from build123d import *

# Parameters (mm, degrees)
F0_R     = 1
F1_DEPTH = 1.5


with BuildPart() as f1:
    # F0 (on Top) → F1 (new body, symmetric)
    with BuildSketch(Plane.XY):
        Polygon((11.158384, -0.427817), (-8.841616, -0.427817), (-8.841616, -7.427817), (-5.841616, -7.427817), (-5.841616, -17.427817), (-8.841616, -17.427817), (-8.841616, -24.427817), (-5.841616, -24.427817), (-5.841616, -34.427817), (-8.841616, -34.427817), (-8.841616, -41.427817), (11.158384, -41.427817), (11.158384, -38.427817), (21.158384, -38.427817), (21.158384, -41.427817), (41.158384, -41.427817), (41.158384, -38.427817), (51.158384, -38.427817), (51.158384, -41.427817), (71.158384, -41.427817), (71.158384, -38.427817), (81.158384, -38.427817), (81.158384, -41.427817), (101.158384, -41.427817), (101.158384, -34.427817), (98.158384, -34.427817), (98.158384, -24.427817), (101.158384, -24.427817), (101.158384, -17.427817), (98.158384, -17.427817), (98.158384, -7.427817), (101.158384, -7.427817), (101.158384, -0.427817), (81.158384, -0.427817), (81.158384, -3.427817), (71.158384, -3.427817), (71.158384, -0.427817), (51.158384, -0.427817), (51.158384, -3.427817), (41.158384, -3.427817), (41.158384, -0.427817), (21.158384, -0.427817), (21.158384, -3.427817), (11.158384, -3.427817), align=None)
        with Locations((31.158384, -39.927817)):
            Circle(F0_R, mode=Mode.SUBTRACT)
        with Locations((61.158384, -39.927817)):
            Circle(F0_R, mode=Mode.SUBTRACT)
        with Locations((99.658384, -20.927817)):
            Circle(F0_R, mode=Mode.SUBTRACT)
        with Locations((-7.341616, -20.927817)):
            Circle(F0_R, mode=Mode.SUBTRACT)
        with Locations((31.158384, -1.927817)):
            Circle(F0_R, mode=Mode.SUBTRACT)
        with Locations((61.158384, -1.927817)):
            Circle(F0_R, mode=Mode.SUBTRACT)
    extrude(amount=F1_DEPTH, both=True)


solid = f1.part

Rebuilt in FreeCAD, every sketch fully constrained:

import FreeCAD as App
import Part
import Sketcher

doc = App.newDocument("Part")
body = doc.addObject("PartDesign::Body", "Body")

# Sketch on XY plane
sketch1 = body.newObject("Sketcher::SketchObject", "Sketch")
sketch1.AttachmentSupport = (doc.getObject("XY_Plane"), [""])
sketch1.MapMode = "FlatFace"
sketch1.addGeometry(Part.LineSegment(App.Vector(11.2, -0.4, 0), App.Vector(-8.8, -0.4, 0)), False)
sketch1.addGeometry(Part.LineSegment(App.Vector(-8.8, -0.4, 0), App.Vector(-8.8, -7.4, 0)), False)
sketch1.addGeometry(Part.LineSegment(App.Vector(-8.8, -7.4, 0), App.Vector(-5.8, -7.4, 0)), False)
sketch1.addGeometry(Part.LineSegment(App.Vector(-5.8, -7.4, 0), App.Vector(-5.8, -17.4, 0)), False)
sketch1.addGeometry(Part.LineSegment(App.Vector(-5.8, -17.4, 0), App.Vector(-8.8, -17.4, 0)), False)
sketch1.addGeometry(Part.LineSegment(App.Vector(-8.8, -17.4, 0), App.Vector(-8.8, -24.4, 0)), False)
sketch1.addGeometry(Part.LineSegment(App.Vector(-8.8, -24.4, 0), App.Vector(-5.8, -24.4, 0)), False)
sketch1.addGeometry(Part.LineSegment(App.Vector(-5.8, -24.4, 0), App.Vector(-5.8, -34.4, 0)), False)
sketch1.addGeometry(Part.LineSegment(App.Vector(-5.8, -34.4, 0), App.Vector(-8.8, -34.4, 0)), False)
sketch1.addGeometry(Part.LineSegment(App.Vector(-8.8, -34.4, 0), App.Vector(-8.8, -41.4, 0)), False)
sketch1.addGeometry(Part.LineSegment(App.Vector(-8.8, -41.4, 0), App.Vector(11.2, -41.4, 0)), False)
sketch1.addGeometry(Part.LineSegment(App.Vector(11.2, -41.4, 0), App.Vector(11.2, -38.4, 0)), False)
sketch1.addGeometry(Part.LineSegment(App.Vector(11.2, -38.4, 0), App.Vector(21.2, -38.4, 0)), False)
sketch1.addGeometry(Part.LineSegment(App.Vector(21.2, -38.4, 0), App.Vector(21.2, -41.4, 0)), False)
sketch1.addGeometry(Part.LineSegment(App.Vector(21.2, -41.4, 0), App.Vector(41.2, -41.4, 0)), False)
sketch1.addGeometry(Part.LineSegment(App.Vector(41.2, -41.4, 0), App.Vector(41.2, -38.4, 0)), False)
sketch1.addGeometry(Part.LineSegment(App.Vector(41.2, -38.4, 0), App.Vector(51.2, -38.4, 0)), False)
sketch1.addGeometry(Part.LineSegment(App.Vector(51.2, -38.4, 0), App.Vector(51.2, -41.4, 0)), False)
sketch1.addGeometry(Part.LineSegment(App.Vector(51.2, -41.4, 0), App.Vector(71.2, -41.4, 0)), False)
sketch1.addGeometry(Part.LineSegment(App.Vector(71.2, -41.4, 0), App.Vector(71.2, -38.4, 0)), False)
sketch1.addGeometry(Part.LineSegment(App.Vector(71.2, -38.4, 0), App.Vector(81.2, -38.4, 0)), False)
sketch1.addGeometry(Part.LineSegment(App.Vector(81.2, -38.4, 0), App.Vector(81.2, -41.4, 0)), False)
sketch1.addGeometry(Part.LineSegment(App.Vector(81.2, -41.4, 0), App.Vector(101.2, -41.4, 0)), False)
sketch1.addGeometry(Part.LineSegment(App.Vector(101.2, -41.4, 0), App.Vector(101.2, -34.4, 0)), False)
sketch1.addGeometry(Part.LineSegment(App.Vector(101.2, -34.4, 0), App.Vector(98.2, -34.4, 0)), False)
sketch1.addGeometry(Part.LineSegment(App.Vector(98.2, -34.4, 0), App.Vector(98.2, -24.4, 0)), False)
sketch1.addGeometry(Part.LineSegment(App.Vector(98.2, -24.4, 0), App.Vector(101.2, -24.4, 0)), False)
sketch1.addGeometry(Part.LineSegment(App.Vector(101.2, -24.4, 0), App.Vector(101.2, -17.4, 0)), False)
sketch1.addGeometry(Part.LineSegment(App.Vector(101.2, -17.4, 0), App.Vector(98.2, -17.4, 0)), False)
sketch1.addGeometry(Part.LineSegment(App.Vector(98.2, -17.4, 0), App.Vector(98.2, -7.4, 0)), False)
sketch1.addGeometry(Part.LineSegment(App.Vector(98.2, -7.4, 0), App.Vector(101.2, -7.4, 0)), False)
sketch1.addGeometry(Part.LineSegment(App.Vector(101.2, -7.4, 0), App.Vector(101.2, -0.4, 0)), False)
sketch1.addGeometry(Part.LineSegment(App.Vector(101.2, -0.4, 0), App.Vector(81.2, -0.4, 0)), False)
sketch1.addGeometry(Part.LineSegment(App.Vector(81.2, -0.4, 0), App.Vector(81.2, -3.4, 0)), False)
sketch1.addGeometry(Part.LineSegment(App.Vector(81.2, -3.4, 0), App.Vector(71.2, -3.4, 0)), False)
sketch1.addGeometry(Part.LineSegment(App.Vector(71.2, -3.4, 0), App.Vector(71.2, -0.4, 0)), False)
sketch1.addGeometry(Part.LineSegment(App.Vector(71.2, -0.4, 0), App.Vector(51.2, -0.4, 0)), False)
sketch1.addGeometry(Part.LineSegment(App.Vector(51.2, -0.4, 0), App.Vector(51.2, -3.4, 0)), False)
sketch1.addGeometry(Part.LineSegment(App.Vector(51.2, -3.4, 0), App.Vector(41.2, -3.4, 0)), False)
sketch1.addGeometry(Part.LineSegment(App.Vector(41.2, -3.4, 0), App.Vector(41.2, -0.4, 0)), False)
sketch1.addGeometry(Part.LineSegment(App.Vector(41.2, -0.4, 0), App.Vector(21.2, -0.4, 0)), False)
sketch1.addGeometry(Part.LineSegment(App.Vector(21.2, -0.4, 0), App.Vector(21.2, -3.4, 0)), False)
sketch1.addGeometry(Part.LineSegment(App.Vector(21.2, -3.4, 0), App.Vector(11.2, -3.4, 0)), False)
sketch1.addGeometry(Part.LineSegment(App.Vector(11.2, -3.4, 0), App.Vector(11.2, -0.4, 0)), False)
sketch1.addGeometry(Part.Circle(App.Vector(31.2, -39.9, 0), App.Vector(0, 0, 1), 1), False)
sketch1.addGeometry(Part.Circle(App.Vector(-7.3, -20.9, 0), App.Vector(0, 0, 1), 1), False)
sketch1.addGeometry(Part.Circle(App.Vector(61.2, -39.9, 0), App.Vector(0, 0, 1), 1), False)
sketch1.addGeometry(Part.Circle(App.Vector(99.7, -20.9, 0), App.Vector(0, 0, 1), 1), False)
sketch1.addGeometry(Part.Circle(App.Vector(31.2, -1.9, 0), App.Vector(0, 0, 1), 1), False)
sketch1.addGeometry(Part.Circle(App.Vector(61.2, -1.9, 0), App.Vector(0, 0, 1), 1), False)
sketch1.addConstraint(Sketcher.Constraint("Coincident", 0, 2, 1, 1))
sketch1.addConstraint(Sketcher.Constraint("Coincident", 1, 2, 2, 1))
sketch1.addConstraint(Sketcher.Constraint("Coincident", 2, 2, 3, 1))
sketch1.addConstraint(Sketcher.Constraint("Coincident", 3, 2, 4, 1))
sketch1.addConstraint(Sketcher.Constraint("Coincident", 4, 2, 5, 1))
sketch1.addConstraint(Sketcher.Constraint("Coincident", 5, 2, 6, 1))
sketch1.addConstraint(Sketcher.Constraint("Coincident", 6, 2, 7, 1))
sketch1.addConstraint(Sketcher.Constraint("Coincident", 7, 2, 8, 1))
sketch1.addConstraint(Sketcher.Constraint("Coincident", 8, 2, 9, 1))
sketch1.addConstraint(Sketcher.Constraint("Coincident", 9, 2, 10, 1))
sketch1.addConstraint(Sketcher.Constraint("Coincident", 10, 2, 11, 1))
sketch1.addConstraint(Sketcher.Constraint("Coincident", 11, 2, 12, 1))
sketch1.addConstraint(Sketcher.Constraint("Coincident", 12, 2, 13, 1))
sketch1.addConstraint(Sketcher.Constraint("Coincident", 13, 2, 14, 1))
sketch1.addConstraint(Sketcher.Constraint("Coincident", 14, 2, 15, 1))
sketch1.addConstraint(Sketcher.Constraint("Coincident", 15, 2, 16, 1))
sketch1.addConstraint(Sketcher.Constraint("Coincident", 16, 2, 17, 1))
sketch1.addConstraint(Sketcher.Constraint("Coincident", 17, 2, 18, 1))
sketch1.addConstraint(Sketcher.Constraint("Coincident", 18, 2, 19, 1))
sketch1.addConstraint(Sketcher.Constraint("Coincident", 19, 2, 20, 1))
sketch1.addConstraint(Sketcher.Constraint("Coincident", 20, 2, 21, 1))
sketch1.addConstraint(Sketcher.Constraint("Coincident", 21, 2, 22, 1))
sketch1.addConstraint(Sketcher.Constraint("Coincident", 22, 2, 23, 1))
sketch1.addConstraint(Sketcher.Constraint("Coincident", 23, 2, 24, 1))
sketch1.addConstraint(Sketcher.Constraint("Coincident", 24, 2, 25, 1))
sketch1.addConstraint(Sketcher.Constraint("Coincident", 25, 2, 26, 1))
sketch1.addConstraint(Sketcher.Constraint("Coincident", 26, 2, 27, 1))
sketch1.addConstraint(Sketcher.Constraint("Coincident", 27, 2, 28, 1))
sketch1.addConstraint(Sketcher.Constraint("Coincident", 28, 2, 29, 1))
sketch1.addConstraint(Sketcher.Constraint("Coincident", 29, 2, 30, 1))
sketch1.addConstraint(Sketcher.Constraint("Coincident", 30, 2, 31, 1))
sketch1.addConstraint(Sketcher.Constraint("Coincident", 31, 2, 32, 1))
sketch1.addConstraint(Sketcher.Constraint("Coincident", 32, 2, 33, 1))
sketch1.addConstraint(Sketcher.Constraint("Coincident", 33, 2, 34, 1))
sketch1.addConstraint(Sketcher.Constraint("Coincident", 34, 2, 35, 1))
sketch1.addConstraint(Sketcher.Constraint("Coincident", 35, 2, 36, 1))
sketch1.addConstraint(Sketcher.Constraint("Coincident", 36, 2, 37, 1))
sketch1.addConstraint(Sketcher.Constraint("Coincident", 37, 2, 38, 1))
sketch1.addConstraint(Sketcher.Constraint("Coincident", 38, 2, 39, 1))
sketch1.addConstraint(Sketcher.Constraint("Coincident", 39, 2, 40, 1))
sketch1.addConstraint(Sketcher.Constraint("Coincident", 40, 2, 41, 1))
sketch1.addConstraint(Sketcher.Constraint("Coincident", 41, 2, 42, 1))
sketch1.addConstraint(Sketcher.Constraint("Coincident", 42, 2, 43, 1))
sketch1.addConstraint(Sketcher.Constraint("Coincident", 43, 2, 0, 1))
sketch1.addConstraint(Sketcher.Constraint("Horizontal", 0))
sketch1.addConstraint(Sketcher.Constraint("Vertical", 1))
sketch1.addConstraint(Sketcher.Constraint("Horizontal", 2))
sketch1.addConstraint(Sketcher.Constraint("Vertical", 3))
sketch1.addConstraint(Sketcher.Constraint("Horizontal", 4))
sketch1.addConstraint(Sketcher.Constraint("Vertical", 5))
sketch1.addConstraint(Sketcher.Constraint("Horizontal", 6))
sketch1.addConstraint(Sketcher.Constraint("Vertical", 7))
sketch1.addConstraint(Sketcher.Constraint("Horizontal", 8))
sketch1.addConstraint(Sketcher.Constraint("Vertical", 9))
sketch1.addConstraint(Sketcher.Constraint("Horizontal", 10))
sketch1.addConstraint(Sketcher.Constraint("Vertical", 11))
sketch1.addConstraint(Sketcher.Constraint("Horizontal", 12))
sketch1.addConstraint(Sketcher.Constraint("Vertical", 13))
sketch1.addConstraint(Sketcher.Constraint("Horizontal", 14))
sketch1.addConstraint(Sketcher.Constraint("Vertical", 15))
sketch1.addConstraint(Sketcher.Constraint("Horizontal", 16))
sketch1.addConstraint(Sketcher.Constraint("Vertical", 17))
sketch1.addConstraint(Sketcher.Constraint("Horizontal", 18))
sketch1.addConstraint(Sketcher.Constraint("Vertical", 19))
sketch1.addConstraint(Sketcher.Constraint("Horizontal", 20))
sketch1.addConstraint(Sketcher.Constraint("Vertical", 21))
sketch1.addConstraint(Sketcher.Constraint("Horizontal", 22))
sketch1.addConstraint(Sketcher.Constraint("Vertical", 23))
sketch1.addConstraint(Sketcher.Constraint("Horizontal", 24))
sketch1.addConstraint(Sketcher.Constraint("Vertical", 25))
sketch1.addConstraint(Sketcher.Constraint("Horizontal", 26))
sketch1.addConstraint(Sketcher.Constraint("Vertical", 27))
sketch1.addConstraint(Sketcher.Constraint("Horizontal", 28))
sketch1.addConstraint(Sketcher.Constraint("Vertical", 29))
sketch1.addConstraint(Sketcher.Constraint("Horizontal", 30))
sketch1.addConstraint(Sketcher.Constraint("Vertical", 31))
sketch1.addConstraint(Sketcher.Constraint("Horizontal", 32))
sketch1.addConstraint(Sketcher.Constraint("Vertical", 33))
sketch1.addConstraint(Sketcher.Constraint("Horizontal", 34))
sketch1.addConstraint(Sketcher.Constraint("Vertical", 35))
sketch1.addConstraint(Sketcher.Constraint("Horizontal", 36))
sketch1.addConstraint(Sketcher.Constraint("Vertical", 37))
sketch1.addConstraint(Sketcher.Constraint("Horizontal", 38))
sketch1.addConstraint(Sketcher.Constraint("Vertical", 39))
sketch1.addConstraint(Sketcher.Constraint("Horizontal", 40))
sketch1.addConstraint(Sketcher.Constraint("Vertical", 41))
sketch1.addConstraint(Sketcher.Constraint("Horizontal", 42))
sketch1.addConstraint(Sketcher.Constraint("Vertical", 43))
sketch1.addConstraint(Sketcher.Constraint("Equal", 44, 45))
sketch1.addConstraint(Sketcher.Constraint("Equal", 45, 46))
sketch1.addConstraint(Sketcher.Constraint("Equal", 46, 47))
sketch1.addConstraint(Sketcher.Constraint("Equal", 47, 48))
sketch1.addConstraint(Sketcher.Constraint("Equal", 48, 49))
sketch1.addConstraint(Sketcher.Constraint("Horizontal", 44, 3, 46, 3))
sketch1.addConstraint(Sketcher.Constraint("Horizontal", 45, 3, 47, 3))
sketch1.addConstraint(Sketcher.Constraint("Horizontal", 48, 3, 49, 3))
sketch1.addConstraint(Sketcher.Constraint("Horizontal", 10, 2, 13, 2))
sketch1.addConstraint(Sketcher.Constraint("Horizontal", 12, 2, 15, 2))
sketch1.addConstraint(Sketcher.Constraint("Horizontal", 14, 2, 17, 2))
sketch1.addConstraint(Sketcher.Constraint("Horizontal", 16, 2, 19, 2))
sketch1.addConstraint(Sketcher.Constraint("Horizontal", 18, 2, 21, 2))
sketch1.addConstraint(Sketcher.Constraint("Horizontal", 8, 2, 23, 2))
sketch1.addConstraint(Sketcher.Constraint("Horizontal", 6, 2, 25, 2))
sketch1.addConstraint(Sketcher.Constraint("Horizontal", 4, 2, 27, 2))
sketch1.addConstraint(Sketcher.Constraint("Horizontal", 2, 2, 29, 2))
sketch1.addConstraint(Sketcher.Constraint("Horizontal", 0, 2, 31, 2))
sketch1.addConstraint(Sketcher.Constraint("Horizontal", 32, 2, 35, 2))
sketch1.addConstraint(Sketcher.Constraint("Horizontal", 34, 2, 37, 2))
sketch1.addConstraint(Sketcher.Constraint("Horizontal", 36, 2, 39, 2))
sketch1.addConstraint(Sketcher.Constraint("Horizontal", 38, 2, 41, 2))
sketch1.addConstraint(Sketcher.Constraint("Vertical", 44, 3, 48, 3))
sketch1.addConstraint(Sketcher.Constraint("Vertical", 46, 3, 49, 3))
sketch1.addConstraint(Sketcher.Constraint("Vertical", 1, 2, 4, 2))
sketch1.addConstraint(Sketcher.Constraint("Vertical", 3, 2, 6, 2))
sketch1.addConstraint(Sketcher.Constraint("Vertical", 5, 2, 8, 2))
sketch1.addConstraint(Sketcher.Constraint("Vertical", 23, 2, 26, 2))
sketch1.addConstraint(Sketcher.Constraint("Vertical", 25, 2, 28, 2))
sketch1.addConstraint(Sketcher.Constraint("Vertical", 27, 2, 30, 2))
sketch1.addConstraint(Sketcher.Constraint("Vertical", 21, 2, 32, 2))
sketch1.addConstraint(Sketcher.Constraint("Vertical", 19, 2, 34, 2))
sketch1.addConstraint(Sketcher.Constraint("Vertical", 17, 2, 36, 2))
sketch1.addConstraint(Sketcher.Constraint("Vertical", 15, 2, 38, 2))
sketch1.addConstraint(Sketcher.Constraint("Vertical", 13, 2, 40, 2))
sketch1.addConstraint(Sketcher.Constraint("Vertical", 11, 2, 42, 2))
sketch1.addConstraint(Sketcher.Constraint("Equal", 10, 14))
sketch1.addConstraint(Sketcher.Constraint("Equal", 12, 16))
sketch1.addConstraint(Sketcher.Constraint("Equal", 14, 18))
sketch1.addConstraint(Sketcher.Constraint("Equal", 16, 20))
sketch1.addConstraint(Sketcher.Constraint("Equal", 18, 22))
sketch1.addConstraint(Sketcher.Constraint("Equal", 8, 24))
sketch1.addConstraint(Sketcher.Constraint("Equal", 42, 3))
sketch1.addConstraint(Sketcher.Constraint("Equal", 1, 5))
sketch1.addConstraint(Sketcher.Constraint("Equal", 3, 7))
sketch1.addConstraint(Sketcher.Constraint("Equal", 5, 9))
sketch1.addConstraint(Sketcher.Constraint("Equal", 30, 11))
sketch1.addConstraint(Sketcher.Constraint("Equal", 21, 33))
sketch1.addConstraint(Sketcher.Constraint("Diameter", 44, 2.0))
sketch1.addConstraint(Sketcher.Constraint("DistanceX", 0, 2, 0, 1, 20.0))
sketch1.addConstraint(Sketcher.Constraint("DistanceX", 2, 1, 2, 2, 3.0))
sketch1.addConstraint(Sketcher.Constraint("DistanceX", 12, 1, 12, 2, 10.0))
sketch1.addConstraint(Sketcher.Constraint("DistanceY", 1, 2, 1, 1, 7.0))
sketch1.addConstraint(Sketcher.Constraint("DistanceY", 44, 3, 45, 3, 19.0))
sketch1.addConstraint(Sketcher.Constraint("DistanceX", 44, 3, 46, 3, 30.0))
sketch1.addConstraint(Sketcher.Constraint("DistanceX", 45, 3, 47, 3, 107.0))
sketch1.addConstraint(Sketcher.Constraint("DistanceY", 44, 3, 48, 3, 38.0))
sketch1.addConstraint(Sketcher.Constraint("DistanceX", 0, 2, 48, 3, 40.0))
sketch1.addConstraint(Sketcher.Constraint("DistanceX", 45, 3, 44, 3, 38.5))
sketch1.addConstraint(Sketcher.Constraint("DistanceY", 45, 3, 0, 2, 20.5))
sketch1.addConstraint(Sketcher.Constraint("DistanceX", -1, 1, 44, 3, 31.158384))
sketch1.addConstraint(Sketcher.Constraint("DistanceY", 44, 3, -1, 1, 39.927817))
pad1 = body.newObject("PartDesign::Pad", "Pad")
pad1.Profile = sketch1
pad1.Length = 3
pad1.Midplane = True

doc.recompute()
